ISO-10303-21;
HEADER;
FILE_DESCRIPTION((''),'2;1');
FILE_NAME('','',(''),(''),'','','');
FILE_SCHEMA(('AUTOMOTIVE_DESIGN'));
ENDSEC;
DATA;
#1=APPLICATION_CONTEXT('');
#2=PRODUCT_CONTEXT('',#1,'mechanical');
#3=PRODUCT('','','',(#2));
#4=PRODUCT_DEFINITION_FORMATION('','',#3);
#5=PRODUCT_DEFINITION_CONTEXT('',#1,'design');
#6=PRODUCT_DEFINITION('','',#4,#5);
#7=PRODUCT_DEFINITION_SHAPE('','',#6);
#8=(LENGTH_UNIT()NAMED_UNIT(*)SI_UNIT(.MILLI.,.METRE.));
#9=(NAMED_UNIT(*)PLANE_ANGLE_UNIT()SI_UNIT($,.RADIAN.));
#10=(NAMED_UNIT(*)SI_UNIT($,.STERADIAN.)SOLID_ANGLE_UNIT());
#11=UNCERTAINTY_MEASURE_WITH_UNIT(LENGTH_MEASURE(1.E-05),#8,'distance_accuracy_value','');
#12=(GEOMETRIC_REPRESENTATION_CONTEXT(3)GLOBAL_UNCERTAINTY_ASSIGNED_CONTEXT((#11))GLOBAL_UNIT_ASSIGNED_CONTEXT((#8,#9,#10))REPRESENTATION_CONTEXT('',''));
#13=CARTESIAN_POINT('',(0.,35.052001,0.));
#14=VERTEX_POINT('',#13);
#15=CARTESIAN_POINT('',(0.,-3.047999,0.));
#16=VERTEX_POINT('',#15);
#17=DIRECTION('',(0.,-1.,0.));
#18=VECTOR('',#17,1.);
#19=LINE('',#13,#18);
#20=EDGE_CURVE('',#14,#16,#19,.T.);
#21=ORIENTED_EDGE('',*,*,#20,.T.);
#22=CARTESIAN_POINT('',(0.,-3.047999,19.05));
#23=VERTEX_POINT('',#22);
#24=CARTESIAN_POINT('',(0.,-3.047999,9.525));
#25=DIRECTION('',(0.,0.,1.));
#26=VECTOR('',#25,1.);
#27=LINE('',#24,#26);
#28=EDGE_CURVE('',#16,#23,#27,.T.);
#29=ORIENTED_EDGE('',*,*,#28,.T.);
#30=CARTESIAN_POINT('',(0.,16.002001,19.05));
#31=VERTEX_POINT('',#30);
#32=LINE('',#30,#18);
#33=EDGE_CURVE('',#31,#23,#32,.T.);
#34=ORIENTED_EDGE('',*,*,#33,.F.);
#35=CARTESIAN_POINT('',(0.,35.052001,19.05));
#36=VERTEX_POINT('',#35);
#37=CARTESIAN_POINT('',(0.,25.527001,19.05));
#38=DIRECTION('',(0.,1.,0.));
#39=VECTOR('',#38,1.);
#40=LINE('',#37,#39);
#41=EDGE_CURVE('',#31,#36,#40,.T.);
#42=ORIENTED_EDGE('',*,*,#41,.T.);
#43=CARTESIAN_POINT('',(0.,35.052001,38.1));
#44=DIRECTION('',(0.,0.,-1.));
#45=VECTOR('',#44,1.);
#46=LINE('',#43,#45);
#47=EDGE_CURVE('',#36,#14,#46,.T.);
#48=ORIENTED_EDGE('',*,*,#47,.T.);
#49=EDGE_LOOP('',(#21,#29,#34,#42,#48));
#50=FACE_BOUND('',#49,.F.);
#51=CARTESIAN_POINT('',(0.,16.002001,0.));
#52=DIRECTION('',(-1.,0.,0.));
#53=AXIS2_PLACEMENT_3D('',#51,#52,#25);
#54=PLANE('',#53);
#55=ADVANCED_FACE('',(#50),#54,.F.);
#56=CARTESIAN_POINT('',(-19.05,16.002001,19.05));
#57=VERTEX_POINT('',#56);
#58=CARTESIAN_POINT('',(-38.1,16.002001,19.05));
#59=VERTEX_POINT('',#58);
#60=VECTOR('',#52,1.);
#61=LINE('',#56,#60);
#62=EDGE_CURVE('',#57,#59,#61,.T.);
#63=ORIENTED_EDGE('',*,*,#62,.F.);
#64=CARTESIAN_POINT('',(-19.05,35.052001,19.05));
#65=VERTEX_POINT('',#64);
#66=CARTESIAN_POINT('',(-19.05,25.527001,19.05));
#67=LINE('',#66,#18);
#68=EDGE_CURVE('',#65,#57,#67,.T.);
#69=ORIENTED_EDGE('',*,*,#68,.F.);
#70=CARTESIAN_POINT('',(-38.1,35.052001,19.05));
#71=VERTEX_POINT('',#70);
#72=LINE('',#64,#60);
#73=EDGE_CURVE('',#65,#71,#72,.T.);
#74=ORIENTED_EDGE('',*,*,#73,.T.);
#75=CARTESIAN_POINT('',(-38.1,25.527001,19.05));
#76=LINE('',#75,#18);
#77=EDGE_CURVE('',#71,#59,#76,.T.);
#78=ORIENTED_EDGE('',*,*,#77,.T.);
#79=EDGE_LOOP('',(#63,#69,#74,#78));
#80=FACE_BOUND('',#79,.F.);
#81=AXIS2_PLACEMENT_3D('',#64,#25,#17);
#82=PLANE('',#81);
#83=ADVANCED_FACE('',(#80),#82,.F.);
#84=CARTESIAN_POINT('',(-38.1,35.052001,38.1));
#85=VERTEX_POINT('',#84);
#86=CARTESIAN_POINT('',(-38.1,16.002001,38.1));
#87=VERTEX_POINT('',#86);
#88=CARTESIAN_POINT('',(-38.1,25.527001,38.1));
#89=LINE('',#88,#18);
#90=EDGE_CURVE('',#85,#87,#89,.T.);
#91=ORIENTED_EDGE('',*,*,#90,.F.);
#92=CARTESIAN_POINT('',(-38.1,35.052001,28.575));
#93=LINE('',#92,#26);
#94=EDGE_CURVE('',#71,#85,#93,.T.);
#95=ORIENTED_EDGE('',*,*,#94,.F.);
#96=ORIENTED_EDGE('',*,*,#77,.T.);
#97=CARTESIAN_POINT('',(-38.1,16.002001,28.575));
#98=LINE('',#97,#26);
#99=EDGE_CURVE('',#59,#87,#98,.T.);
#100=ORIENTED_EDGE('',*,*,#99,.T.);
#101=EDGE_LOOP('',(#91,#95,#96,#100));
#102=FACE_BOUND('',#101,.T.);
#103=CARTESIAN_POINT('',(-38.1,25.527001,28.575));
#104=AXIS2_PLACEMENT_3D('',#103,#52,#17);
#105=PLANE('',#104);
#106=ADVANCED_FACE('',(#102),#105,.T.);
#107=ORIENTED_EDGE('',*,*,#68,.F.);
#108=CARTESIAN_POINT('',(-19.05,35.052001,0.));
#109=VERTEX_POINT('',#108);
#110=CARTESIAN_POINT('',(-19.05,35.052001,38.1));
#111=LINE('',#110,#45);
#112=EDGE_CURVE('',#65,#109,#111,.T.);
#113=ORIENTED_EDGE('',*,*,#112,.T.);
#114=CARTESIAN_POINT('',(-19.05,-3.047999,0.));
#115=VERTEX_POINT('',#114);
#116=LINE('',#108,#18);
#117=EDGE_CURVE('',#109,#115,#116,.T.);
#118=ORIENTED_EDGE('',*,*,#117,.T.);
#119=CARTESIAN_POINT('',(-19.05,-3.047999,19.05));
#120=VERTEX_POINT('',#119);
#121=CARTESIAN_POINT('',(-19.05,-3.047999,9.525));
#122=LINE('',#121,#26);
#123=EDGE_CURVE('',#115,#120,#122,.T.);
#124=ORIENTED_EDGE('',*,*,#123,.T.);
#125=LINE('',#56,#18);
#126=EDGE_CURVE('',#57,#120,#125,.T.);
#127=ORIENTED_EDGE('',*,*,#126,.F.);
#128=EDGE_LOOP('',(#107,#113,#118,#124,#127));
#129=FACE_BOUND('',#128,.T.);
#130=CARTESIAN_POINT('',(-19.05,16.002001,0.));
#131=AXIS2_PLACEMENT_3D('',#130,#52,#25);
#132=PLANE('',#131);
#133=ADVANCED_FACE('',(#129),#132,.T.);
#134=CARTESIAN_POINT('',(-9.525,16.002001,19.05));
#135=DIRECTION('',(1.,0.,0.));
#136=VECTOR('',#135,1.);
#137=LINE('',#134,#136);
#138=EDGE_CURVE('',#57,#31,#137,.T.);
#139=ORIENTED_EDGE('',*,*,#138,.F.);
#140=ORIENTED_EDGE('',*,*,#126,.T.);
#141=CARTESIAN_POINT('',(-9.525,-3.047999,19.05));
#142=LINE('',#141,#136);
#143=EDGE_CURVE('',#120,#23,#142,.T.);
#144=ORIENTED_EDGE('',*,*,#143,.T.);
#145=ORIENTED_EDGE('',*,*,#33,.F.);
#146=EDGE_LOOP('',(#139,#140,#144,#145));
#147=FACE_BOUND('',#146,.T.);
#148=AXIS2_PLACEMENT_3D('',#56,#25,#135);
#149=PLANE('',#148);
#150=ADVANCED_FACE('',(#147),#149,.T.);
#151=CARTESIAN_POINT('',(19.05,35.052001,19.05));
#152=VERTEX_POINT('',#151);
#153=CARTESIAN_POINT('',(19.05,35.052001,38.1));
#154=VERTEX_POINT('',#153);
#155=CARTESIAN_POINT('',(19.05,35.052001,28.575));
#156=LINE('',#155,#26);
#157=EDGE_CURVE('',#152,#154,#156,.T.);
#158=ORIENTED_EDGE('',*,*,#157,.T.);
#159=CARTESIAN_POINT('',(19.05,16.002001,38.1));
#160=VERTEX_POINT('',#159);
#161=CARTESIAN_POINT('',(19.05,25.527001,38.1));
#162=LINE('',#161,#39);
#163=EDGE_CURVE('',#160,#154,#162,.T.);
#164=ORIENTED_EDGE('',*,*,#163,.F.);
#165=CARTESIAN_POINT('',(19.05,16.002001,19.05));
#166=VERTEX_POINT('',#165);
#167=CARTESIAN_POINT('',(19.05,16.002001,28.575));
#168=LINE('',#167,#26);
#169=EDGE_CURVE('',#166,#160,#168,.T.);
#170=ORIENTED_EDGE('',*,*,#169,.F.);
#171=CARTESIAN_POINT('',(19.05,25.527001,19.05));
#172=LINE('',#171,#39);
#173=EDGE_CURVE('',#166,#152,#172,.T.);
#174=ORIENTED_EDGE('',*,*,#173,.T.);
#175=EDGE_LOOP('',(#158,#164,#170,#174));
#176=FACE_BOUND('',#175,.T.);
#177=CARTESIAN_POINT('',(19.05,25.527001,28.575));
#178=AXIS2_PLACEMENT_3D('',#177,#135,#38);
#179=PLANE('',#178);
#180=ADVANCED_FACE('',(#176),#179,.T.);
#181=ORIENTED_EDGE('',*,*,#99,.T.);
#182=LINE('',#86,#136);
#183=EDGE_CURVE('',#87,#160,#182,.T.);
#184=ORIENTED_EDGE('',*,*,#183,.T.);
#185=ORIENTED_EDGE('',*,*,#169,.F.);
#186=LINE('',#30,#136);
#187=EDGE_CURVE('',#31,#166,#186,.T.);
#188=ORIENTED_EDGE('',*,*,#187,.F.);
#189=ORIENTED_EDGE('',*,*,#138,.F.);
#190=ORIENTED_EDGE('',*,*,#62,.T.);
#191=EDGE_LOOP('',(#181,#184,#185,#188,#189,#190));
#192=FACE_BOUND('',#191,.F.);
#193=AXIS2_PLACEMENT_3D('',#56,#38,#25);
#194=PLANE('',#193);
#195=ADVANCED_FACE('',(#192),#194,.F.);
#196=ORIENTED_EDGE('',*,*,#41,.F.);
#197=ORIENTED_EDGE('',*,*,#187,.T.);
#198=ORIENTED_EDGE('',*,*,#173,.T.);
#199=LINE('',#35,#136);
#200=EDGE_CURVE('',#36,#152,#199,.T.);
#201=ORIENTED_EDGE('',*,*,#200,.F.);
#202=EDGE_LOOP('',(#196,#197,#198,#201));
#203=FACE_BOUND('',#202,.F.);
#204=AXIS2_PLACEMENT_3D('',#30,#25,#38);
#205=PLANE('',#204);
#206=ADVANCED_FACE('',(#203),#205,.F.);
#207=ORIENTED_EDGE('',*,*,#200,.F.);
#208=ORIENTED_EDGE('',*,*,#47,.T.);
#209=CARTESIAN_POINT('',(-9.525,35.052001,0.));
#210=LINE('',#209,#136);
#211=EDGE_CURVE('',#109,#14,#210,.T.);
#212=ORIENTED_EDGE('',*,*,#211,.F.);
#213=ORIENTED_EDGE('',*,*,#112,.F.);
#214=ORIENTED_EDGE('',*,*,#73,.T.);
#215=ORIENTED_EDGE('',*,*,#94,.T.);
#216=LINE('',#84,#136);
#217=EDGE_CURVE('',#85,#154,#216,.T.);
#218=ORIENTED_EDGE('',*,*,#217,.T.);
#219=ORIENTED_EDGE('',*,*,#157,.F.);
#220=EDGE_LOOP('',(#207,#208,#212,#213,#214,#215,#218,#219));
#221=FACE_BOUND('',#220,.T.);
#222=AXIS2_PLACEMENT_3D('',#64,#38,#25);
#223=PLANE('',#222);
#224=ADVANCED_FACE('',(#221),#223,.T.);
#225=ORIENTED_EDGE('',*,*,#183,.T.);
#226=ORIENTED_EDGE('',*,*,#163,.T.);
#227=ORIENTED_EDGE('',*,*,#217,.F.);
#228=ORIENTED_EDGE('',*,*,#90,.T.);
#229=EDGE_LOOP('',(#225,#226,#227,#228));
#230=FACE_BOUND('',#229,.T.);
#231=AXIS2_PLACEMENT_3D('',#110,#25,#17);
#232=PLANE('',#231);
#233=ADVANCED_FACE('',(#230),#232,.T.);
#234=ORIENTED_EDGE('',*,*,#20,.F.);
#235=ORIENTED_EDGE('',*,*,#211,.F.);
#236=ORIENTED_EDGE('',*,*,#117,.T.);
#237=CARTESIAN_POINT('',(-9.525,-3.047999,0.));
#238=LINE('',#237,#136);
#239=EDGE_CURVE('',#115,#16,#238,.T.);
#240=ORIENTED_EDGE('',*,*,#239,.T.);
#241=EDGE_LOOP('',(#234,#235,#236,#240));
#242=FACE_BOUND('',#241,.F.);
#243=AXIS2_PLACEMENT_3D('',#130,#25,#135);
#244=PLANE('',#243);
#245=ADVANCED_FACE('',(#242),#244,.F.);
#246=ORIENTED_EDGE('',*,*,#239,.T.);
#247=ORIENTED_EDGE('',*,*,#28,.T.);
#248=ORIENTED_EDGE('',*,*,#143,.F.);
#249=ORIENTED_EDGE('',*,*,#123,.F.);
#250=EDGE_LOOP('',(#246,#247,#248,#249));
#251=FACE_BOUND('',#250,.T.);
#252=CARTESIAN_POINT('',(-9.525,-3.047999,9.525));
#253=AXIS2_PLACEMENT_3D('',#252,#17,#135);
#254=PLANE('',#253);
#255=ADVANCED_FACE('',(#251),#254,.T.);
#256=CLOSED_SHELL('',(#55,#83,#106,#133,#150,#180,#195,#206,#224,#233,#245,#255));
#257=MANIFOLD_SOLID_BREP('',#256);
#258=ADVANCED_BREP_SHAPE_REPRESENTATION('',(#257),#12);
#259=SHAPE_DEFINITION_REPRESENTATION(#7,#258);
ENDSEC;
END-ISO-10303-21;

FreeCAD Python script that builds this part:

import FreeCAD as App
import Part
import Sketcher
from FreeCAD import Vector
Q = App.Units.Quantity


def add_polygon(sketch, points):
    """Adds a closed chain of lines whose ends are joined by coincident constraints."""
    first, n = sketch.GeometryCount, len(points)
    for a, b in zip(points, points[1:] + points[:1]):
        sketch.addGeometry(Part.LineSegment(App.Vector(*a, 0), App.Vector(*b, 0)), False)
    for i in range(n):
        sketch.addConstraint(Sketcher.Constraint("Coincident", first + i, 2, first + (i + 1) % n, 1))

doc = App.newDocument("Part")
body = doc.addObject("PartDesign::Body", "Body")

# Sketch on XY plane
sketch1 = body.newObject("Sketcher::SketchObject", "Sketch")
sketch1.AttachmentSupport = (doc.getObject("XY_Plane"), [""])
sketch1.MapMode = "FlatFace"
add_polygon(sketch1, [(-19, 35), (-19, 16), (0, 16), (0, 35)])  # lines 0-3
sketch1.addConstraint(Sketcher.Constraint("Vertical", 0))
sketch1.addConstraint(Sketcher.Constraint("Horizontal", 1))
sketch1.addConstraint(Sketcher.Constraint("Vertical", 2))
sketch1.addConstraint(Sketcher.Constraint("Horizontal", 3))
sketch1.addConstraint(Sketcher.Constraint("PointOnObject", 1, 2, -2))
sketch1.addConstraint(Sketcher.Constraint("Equal", 3, 0))
sketch1.addConstraint(Sketcher.Constraint("DistanceX", 1, 1, 1, 2, Q("0.75 in")))
sketch1.addConstraint(Sketcher.Constraint("DistanceY", -1, 1, 0, 2, Q("0.63 in")))
pad1 = body.newObject("PartDesign::Pad", "Pad")
pad1.Profile = sketch1
pad1.Length = Q("0.75 in")

# Sketch on XY plane
sketch2 = body.newObject("Sketcher::SketchObject", "Sketch001")
sketch2.AttachmentSupport = (doc.getObject("XY_Plane"), [""])
sketch2.MapMode = "FlatFace"
sketch2.AttachmentOffset = App.Placement(Vector(0, 0, 0.75 * 25.4), App.Rotation())
add_polygon(sketch2, [(-19, 35), (-19, 16), (0, 16), (0, 35)])  # lines 0-3
sketch2.addConstraint(Sketcher.Constraint("Vertical", 0))
sketch2.addConstraint(Sketcher.Constraint("Horizontal", 1))
sketch2.addConstraint(Sketcher.Constraint("Vertical", 2))
sketch2.addConstraint(Sketcher.Constraint("Horizontal", 3))
sketch2.addConstraint(Sketcher.Constraint("PointOnObject", 1, 2, -2))
sketch2.addConstraint(Sketcher.Constraint("Equal", 3, 0))
sketch2.addConstraint(Sketcher.Constraint("DistanceX", 1, 1, 1, 2, Q("0.75 in")))
sketch2.addConstraint(Sketcher.Constraint("DistanceY", -1, 1, 0, 2, Q("0.63 in")))
pad2 = body.newObject("PartDesign::Pad", "Pad001")
pad2.Profile = sketch2
pad2.Length = Q("0.75 in")

# Sketch on XZ plane
sketch3 = body.newObject("Sketcher::SketchObject", "Sketch002")
sketch3.AttachmentSupport = (doc.getObject("XZ_Plane"), [""])
sketch3.MapMode = "FlatFace"
sketch3.AttachmentOffset = App.Placement(Vector(0, 0, -0.63 * 25.4), App.Rotation())
add_polygon(sketch3, [(-19, 19), (-19, 0), (0, 0), (0, 19)])  # lines 0-3
sketch3.addConstraint(Sketcher.Constraint("Vertical", 0))
sketch3.addConstraint(Sketcher.Constraint("Horizontal", 1))
sketch3.addConstraint(Sketcher.Constraint("Vertical", 2))
sketch3.addConstraint(Sketcher.Constraint("Horizontal", 3))
sketch3.addConstraint(Sketcher.Constraint("Coincident", 1, 2, -1, 1))
sketch3.addConstraint(Sketcher.Constraint("Equal", 3, 0))
sketch3.addConstraint(Sketcher.Constraint("DistanceX", 1, 1, 1, 2, Q("0.75 in")))
pad3 = body.newObject("PartDesign::Pad", "Pad002")
pad3.Profile = sketch3
pad3.Length = Q("0.75 in")

# Sketch on YZ plane
sketch4 = body.newObject("Sketcher::SketchObject", "Sketch003")
sketch4.AttachmentSupport = (doc.getObject("YZ_Plane"), [""])
sketch4.MapMode = "FlatFace"
add_polygon(sketch4, [(16, 38), (16, 19), (35, 19), (35, 38)])  # lines 0-3
sketch4.addConstraint(Sketcher.Constraint("Vertical", 0))
sketch4.addConstraint(Sketcher.Constraint("Horizontal", 1))
sketch4.addConstraint(Sketcher.Constraint("Vertical", 2))
sketch4.addConstraint(Sketcher.Constraint("Horizontal", 3))
sketch4.addConstraint(Sketcher.Constraint("Equal", 3, 0))
sketch4.addConstraint(Sketcher.Constraint("DistanceX", 1, 1, 1, 2, Q("0.75 in")))
sketch4.addConstraint(Sketcher.Constraint("DistanceY", -1, 1, 2, 2, Q("1.5 in")))
sketch4.addConstraint(Sketcher.Constraint("DistanceX", -1, 1, 0, 2, Q("0.63 in")))
pad4 = body.newObject("PartDesign::Pad", "Pad003")
pad4.Profile = sketch4
pad4.Length = Q("0.75 in")

# Sketch on YZ plane
sketch5 = body.newObject("Sketcher::SketchObject", "Sketch004")
sketch5.AttachmentSupport = (doc.getObject("YZ_Plane"), [""])
sketch5.MapMode = "FlatFace"
sketch5.AttachmentOffset = App.Placement(Vector(0, 0, -0.75 * 25.4), App.Rotation())
add_polygon(sketch5, [(35, 38), (35, 19), (16, 19), (16, 38)])  # lines 0-3
sketch5.addConstraint(Sketcher.Constraint("Vertical", 0))
sketch5.addConstraint(Sketcher.Constraint("Horizontal", 1))
sketch5.addConstraint(Sketcher.Constraint("Vertical", 2))
sketch5.addConstraint(Sketcher.Constraint("Horizontal", 3))
sketch5.addConstraint(Sketcher.Constraint("Equal", 3, 0))
sketch5.addConstraint(Sketcher.Constraint("DistanceX", 1, 2, 1, 1, Q("0.75 in")))
sketch5.addConstraint(Sketcher.Constraint("DistanceY", -1, 1, 2, 2, Q("1.5 in")))
sketch5.addConstraint(Sketcher.Constraint("DistanceX", -1, 1, 0, 2, Q("1.38 in")))
pad5 = body.newObject("PartDesign::Pad", "Pad004")
pad5.Profile = sketch5
pad5.Length = Q("0.75 in")
pad5.Reversed = True

doc.recompute()
